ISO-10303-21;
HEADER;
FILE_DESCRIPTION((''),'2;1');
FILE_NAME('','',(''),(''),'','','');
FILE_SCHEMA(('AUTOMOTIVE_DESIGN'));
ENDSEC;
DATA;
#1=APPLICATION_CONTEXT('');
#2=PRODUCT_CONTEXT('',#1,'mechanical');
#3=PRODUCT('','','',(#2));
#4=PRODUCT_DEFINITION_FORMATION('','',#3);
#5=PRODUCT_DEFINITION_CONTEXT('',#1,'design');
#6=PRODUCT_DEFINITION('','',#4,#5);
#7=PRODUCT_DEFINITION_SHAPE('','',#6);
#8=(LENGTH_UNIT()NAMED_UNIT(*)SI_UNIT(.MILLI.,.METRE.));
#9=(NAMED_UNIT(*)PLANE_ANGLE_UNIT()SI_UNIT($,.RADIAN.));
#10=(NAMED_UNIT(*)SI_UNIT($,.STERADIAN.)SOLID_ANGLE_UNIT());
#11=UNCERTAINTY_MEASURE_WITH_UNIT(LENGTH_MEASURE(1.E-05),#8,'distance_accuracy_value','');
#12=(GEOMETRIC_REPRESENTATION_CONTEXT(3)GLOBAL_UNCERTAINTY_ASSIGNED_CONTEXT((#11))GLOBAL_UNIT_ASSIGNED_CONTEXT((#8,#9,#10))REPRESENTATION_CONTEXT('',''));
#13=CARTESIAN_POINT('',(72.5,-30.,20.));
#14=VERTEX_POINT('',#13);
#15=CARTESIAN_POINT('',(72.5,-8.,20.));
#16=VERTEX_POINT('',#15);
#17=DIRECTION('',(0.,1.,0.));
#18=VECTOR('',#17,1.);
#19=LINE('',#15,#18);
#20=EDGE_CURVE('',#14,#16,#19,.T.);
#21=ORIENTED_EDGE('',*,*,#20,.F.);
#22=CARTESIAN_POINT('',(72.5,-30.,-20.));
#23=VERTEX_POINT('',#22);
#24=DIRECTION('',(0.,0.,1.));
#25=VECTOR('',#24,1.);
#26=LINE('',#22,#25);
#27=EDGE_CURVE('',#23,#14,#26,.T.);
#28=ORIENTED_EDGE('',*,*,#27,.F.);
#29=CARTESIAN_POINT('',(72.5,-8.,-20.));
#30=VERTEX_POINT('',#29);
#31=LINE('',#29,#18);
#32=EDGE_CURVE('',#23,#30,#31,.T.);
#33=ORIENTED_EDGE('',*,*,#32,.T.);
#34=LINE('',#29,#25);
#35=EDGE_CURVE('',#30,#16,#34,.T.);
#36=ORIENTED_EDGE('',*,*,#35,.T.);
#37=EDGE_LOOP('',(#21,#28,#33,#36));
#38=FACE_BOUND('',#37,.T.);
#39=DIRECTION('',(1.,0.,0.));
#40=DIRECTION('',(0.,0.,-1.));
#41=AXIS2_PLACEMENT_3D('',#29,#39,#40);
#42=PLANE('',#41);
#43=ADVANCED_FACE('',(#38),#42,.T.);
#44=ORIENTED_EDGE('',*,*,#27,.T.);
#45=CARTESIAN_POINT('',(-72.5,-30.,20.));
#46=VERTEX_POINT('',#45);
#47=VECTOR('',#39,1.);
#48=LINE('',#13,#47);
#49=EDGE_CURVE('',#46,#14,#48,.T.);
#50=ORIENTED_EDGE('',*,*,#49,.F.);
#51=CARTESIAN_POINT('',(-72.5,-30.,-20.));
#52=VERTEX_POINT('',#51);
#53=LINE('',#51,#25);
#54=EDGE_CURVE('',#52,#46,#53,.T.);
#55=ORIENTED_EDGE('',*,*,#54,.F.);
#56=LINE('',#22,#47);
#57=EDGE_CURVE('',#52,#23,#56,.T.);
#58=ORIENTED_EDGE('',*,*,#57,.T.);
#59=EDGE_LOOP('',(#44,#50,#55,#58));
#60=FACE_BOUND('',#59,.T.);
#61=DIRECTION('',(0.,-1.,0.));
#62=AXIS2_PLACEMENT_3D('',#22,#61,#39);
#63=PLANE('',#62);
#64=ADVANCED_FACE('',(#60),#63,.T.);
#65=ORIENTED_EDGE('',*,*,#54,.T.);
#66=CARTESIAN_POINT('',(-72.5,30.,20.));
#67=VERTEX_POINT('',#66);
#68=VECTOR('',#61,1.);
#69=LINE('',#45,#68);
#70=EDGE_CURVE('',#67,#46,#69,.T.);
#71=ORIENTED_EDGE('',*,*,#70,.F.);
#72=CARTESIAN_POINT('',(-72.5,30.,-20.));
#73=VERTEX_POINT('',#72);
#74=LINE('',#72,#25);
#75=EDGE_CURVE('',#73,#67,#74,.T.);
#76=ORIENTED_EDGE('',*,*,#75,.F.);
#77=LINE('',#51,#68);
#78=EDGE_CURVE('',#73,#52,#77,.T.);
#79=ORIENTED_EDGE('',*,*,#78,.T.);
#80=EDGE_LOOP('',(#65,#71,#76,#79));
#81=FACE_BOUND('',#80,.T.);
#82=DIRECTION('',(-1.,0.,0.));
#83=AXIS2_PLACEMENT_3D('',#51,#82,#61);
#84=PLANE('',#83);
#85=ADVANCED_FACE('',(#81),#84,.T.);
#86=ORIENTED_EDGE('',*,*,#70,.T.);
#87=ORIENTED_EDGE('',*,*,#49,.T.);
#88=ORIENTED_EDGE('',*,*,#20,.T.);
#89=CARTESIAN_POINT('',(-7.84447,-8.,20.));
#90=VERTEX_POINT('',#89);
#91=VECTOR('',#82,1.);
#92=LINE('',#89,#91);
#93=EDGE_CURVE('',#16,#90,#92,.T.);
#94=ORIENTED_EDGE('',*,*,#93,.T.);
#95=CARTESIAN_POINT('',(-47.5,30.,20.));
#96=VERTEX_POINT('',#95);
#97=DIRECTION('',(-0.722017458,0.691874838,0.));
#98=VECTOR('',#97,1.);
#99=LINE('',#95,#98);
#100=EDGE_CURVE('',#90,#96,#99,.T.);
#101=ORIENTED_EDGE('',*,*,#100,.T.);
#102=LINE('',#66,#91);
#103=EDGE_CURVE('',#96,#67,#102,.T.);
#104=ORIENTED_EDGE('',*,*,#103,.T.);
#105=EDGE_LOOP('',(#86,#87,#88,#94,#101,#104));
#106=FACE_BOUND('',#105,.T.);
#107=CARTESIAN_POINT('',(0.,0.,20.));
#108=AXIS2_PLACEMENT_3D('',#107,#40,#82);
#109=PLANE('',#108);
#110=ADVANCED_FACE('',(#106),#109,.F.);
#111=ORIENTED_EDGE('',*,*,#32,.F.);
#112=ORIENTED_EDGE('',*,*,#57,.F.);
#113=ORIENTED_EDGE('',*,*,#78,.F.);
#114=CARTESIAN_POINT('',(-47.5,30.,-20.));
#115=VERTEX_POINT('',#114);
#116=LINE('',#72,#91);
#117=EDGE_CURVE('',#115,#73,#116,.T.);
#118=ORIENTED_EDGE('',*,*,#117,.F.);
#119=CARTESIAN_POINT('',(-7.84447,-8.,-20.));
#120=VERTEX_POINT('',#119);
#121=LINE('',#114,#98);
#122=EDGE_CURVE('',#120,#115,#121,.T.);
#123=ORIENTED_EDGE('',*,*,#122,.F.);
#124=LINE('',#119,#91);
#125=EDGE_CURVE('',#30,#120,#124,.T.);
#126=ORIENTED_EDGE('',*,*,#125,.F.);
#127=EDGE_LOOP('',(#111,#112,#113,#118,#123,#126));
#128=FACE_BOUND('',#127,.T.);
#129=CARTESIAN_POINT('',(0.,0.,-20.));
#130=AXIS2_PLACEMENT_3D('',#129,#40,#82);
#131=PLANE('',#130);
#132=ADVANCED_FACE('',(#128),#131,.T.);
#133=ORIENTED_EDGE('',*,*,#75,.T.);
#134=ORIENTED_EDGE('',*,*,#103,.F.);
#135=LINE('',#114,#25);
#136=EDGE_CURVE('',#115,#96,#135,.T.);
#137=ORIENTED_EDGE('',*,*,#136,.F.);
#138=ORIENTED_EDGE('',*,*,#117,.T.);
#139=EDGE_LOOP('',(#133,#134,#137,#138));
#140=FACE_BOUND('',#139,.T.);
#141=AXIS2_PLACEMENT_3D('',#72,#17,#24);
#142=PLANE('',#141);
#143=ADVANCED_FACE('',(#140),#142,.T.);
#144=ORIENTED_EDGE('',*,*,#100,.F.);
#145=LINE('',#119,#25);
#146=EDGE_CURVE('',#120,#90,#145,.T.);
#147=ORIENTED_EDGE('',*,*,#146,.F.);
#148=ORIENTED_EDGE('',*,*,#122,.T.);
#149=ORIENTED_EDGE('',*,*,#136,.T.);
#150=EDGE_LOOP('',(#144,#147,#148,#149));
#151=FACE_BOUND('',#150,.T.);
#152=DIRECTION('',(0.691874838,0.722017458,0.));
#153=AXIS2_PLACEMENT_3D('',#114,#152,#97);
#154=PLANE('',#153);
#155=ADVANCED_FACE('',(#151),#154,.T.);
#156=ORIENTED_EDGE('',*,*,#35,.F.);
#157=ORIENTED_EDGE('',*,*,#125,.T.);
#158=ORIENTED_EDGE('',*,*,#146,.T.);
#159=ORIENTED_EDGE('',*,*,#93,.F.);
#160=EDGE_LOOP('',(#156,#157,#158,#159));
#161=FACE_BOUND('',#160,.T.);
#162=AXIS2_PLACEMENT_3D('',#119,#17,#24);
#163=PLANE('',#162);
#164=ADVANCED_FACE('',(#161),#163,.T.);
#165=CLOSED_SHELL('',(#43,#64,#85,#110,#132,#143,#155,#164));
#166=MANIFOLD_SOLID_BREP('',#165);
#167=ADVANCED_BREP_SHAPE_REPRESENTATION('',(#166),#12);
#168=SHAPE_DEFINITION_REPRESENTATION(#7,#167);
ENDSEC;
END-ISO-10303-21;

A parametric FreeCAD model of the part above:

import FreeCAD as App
import Part
import Sketcher
Q = App.Units.Quantity

doc = App.newDocument("Part")
body = doc.addObject("PartDesign::Body", "Body")

# Sketch on XY plane
sketch1 = body.newObject("Sketcher::SketchObject", "Sketch")
sketch1.AttachmentSupport = (doc.getObject("XY_Plane"), [""])
sketch1.MapMode = "FlatFace"
sketch1.addGeometry(Part.LineSegment(App.Vector(-47.5, 30, 0), App.Vector(-72.5, 30, 0)), False)
sketch1.addGeometry(Part.LineSegment(App.Vector(-72.5, 30, 0), App.Vector(-72.5, -30, 0)), False)
sketch1.addGeometry(Part.LineSegment(App.Vector(-72.5, -30, 0), App.Vector(72.5, -30, 0)), False)
sketch1.addGeometry(Part.LineSegment(App.Vector(72.5, -30, 0), App.Vector(72.5, -8, 0)), False)
sketch1.addGeometry(Part.LineSegment(App.Vector(72.5, -8, 0), App.Vector(-7.84447, -8, 0)), False)
sketch1.addGeometry(Part.LineSegment(App.Vector(-7.84447, -8, 0), App.Vector(-47.5, 30, 0)), False)
sketch1.addConstraint(Sketcher.Constraint("Coincident", 0, 2, 1, 1))
sketch1.addConstraint(Sketcher.Constraint("Coincident", 1, 2, 2, 1))
sketch1.addConstraint(Sketcher.Constraint("Coincident", 2, 2, 3, 1))
sketch1.addConstraint(Sketcher.Constraint("Coincident", 3, 2, 4, 1))
sketch1.addConstraint(Sketcher.Constraint("Coincident", 4, 2, 5, 1))
sketch1.addConstraint(Sketcher.Constraint("Coincident", 5, 2, 0, 1))
sketch1.addConstraint(Sketcher.Constraint("Horizontal", 0))
sketch1.addConstraint(Sketcher.Constraint("Vertical", 1))
sketch1.addConstraint(Sketcher.Constraint("Horizontal", 2))
sketch1.addConstraint(Sketcher.Constraint("Vertical", 3))
sketch1.addConstraint(Sketcher.Constraint("Horizontal", 4))
sketch1.addConstraint(Sketcher.Constraint("Symmetric", 0, 2, 2, 2, -1, 1))
sketch1.addConstraint(Sketcher.Constraint("DistanceX", 0, 2, 0, 1, Q("25 mm")))
sketch1.addConstraint(Sketcher.Constraint("DistanceX", 2, 1, 2, 2, Q("145 mm")))
sketch1.addConstraint(Sketcher.Constraint("DistanceY", 1, 2, 1, 1, Q("60 mm")))
sketch1.addConstraint(Sketcher.Constraint("DistanceY", 3, 1, 3, 2, Q("22 mm")))
sketch1.addConstraint(Sketcher.Constraint("DistanceX", 4, 2, 4, 1, Q("80.34447 mm")))
pad1 = body.newObject("PartDesign::Pad", "Pad")
pad1.Profile = sketch1
pad1.Type = "TwoLengths"
pad1.Length = 20
pad1.Length2 = 20

doc.recompute()
